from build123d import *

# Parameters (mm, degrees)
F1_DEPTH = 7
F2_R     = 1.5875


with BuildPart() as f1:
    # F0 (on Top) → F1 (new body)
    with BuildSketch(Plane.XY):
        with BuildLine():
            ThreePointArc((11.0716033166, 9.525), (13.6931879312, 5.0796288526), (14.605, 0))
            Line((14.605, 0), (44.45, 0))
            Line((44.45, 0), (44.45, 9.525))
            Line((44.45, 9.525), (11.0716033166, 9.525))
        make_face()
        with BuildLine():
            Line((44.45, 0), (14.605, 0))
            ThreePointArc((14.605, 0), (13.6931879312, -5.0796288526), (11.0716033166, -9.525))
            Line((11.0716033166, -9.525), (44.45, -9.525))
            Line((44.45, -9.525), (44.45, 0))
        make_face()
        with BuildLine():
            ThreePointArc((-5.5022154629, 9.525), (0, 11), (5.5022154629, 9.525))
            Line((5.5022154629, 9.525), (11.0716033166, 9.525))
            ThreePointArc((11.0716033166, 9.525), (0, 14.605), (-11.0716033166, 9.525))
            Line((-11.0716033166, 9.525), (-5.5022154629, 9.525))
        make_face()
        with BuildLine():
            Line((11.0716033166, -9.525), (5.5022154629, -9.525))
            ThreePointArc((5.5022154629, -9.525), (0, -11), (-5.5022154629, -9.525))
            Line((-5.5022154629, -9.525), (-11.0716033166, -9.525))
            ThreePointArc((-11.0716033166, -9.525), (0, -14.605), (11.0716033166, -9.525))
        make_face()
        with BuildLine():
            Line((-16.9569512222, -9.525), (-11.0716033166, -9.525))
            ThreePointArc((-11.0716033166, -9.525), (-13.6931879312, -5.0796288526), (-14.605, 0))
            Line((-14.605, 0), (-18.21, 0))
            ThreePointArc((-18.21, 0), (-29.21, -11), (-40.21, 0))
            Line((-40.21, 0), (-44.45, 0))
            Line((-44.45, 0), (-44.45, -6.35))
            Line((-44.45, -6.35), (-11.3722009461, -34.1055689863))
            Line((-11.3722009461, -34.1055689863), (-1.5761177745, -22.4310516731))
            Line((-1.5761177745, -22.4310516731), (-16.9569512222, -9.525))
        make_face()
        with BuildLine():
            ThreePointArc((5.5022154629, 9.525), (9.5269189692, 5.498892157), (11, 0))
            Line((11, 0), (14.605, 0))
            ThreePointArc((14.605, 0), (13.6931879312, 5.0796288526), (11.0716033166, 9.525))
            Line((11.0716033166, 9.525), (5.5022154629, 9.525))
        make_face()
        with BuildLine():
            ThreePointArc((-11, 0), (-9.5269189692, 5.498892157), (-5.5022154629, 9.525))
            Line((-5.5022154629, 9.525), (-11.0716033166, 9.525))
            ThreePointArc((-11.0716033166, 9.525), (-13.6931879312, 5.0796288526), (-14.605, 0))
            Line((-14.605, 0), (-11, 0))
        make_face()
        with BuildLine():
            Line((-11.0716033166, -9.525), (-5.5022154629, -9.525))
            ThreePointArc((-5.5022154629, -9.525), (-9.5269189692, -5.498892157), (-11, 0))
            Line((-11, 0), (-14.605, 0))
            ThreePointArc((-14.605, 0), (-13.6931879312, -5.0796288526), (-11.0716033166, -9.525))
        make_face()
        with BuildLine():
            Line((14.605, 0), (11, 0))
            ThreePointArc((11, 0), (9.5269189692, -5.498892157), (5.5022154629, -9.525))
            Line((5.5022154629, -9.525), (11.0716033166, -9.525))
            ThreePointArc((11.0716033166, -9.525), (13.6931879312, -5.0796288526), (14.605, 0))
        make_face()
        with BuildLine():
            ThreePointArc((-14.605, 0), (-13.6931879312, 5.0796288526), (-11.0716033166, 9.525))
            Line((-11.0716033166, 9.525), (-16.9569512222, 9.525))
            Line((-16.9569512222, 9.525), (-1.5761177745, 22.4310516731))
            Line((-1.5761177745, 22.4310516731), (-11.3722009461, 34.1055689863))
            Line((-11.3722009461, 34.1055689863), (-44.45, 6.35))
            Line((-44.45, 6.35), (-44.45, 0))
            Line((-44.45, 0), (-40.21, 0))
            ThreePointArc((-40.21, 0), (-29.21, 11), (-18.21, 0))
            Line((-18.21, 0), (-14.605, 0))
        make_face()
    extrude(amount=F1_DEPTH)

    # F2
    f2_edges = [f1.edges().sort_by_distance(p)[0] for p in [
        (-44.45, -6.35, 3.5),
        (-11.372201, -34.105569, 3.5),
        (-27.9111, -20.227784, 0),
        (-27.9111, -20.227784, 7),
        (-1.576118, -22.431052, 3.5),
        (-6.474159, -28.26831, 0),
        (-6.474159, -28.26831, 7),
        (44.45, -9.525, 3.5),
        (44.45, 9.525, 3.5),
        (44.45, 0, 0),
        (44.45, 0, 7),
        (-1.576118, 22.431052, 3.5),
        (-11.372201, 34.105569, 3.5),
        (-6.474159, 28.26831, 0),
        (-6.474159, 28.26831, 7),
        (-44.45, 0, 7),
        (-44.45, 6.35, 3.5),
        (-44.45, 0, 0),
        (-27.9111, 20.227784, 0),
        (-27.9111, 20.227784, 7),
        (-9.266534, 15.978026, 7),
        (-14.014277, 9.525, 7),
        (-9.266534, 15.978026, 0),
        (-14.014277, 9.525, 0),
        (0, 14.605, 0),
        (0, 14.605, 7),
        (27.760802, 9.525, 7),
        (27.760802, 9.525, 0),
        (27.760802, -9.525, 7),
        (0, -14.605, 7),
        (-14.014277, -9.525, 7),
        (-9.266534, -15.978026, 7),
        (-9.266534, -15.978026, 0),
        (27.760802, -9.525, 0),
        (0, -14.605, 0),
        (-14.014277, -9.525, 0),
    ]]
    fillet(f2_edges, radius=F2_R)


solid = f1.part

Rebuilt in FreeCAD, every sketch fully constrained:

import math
import FreeCAD as App
import Part
import Sketcher

V = App.Vector
Q = App.Units.Quantity


def edges_at(feature, points):
    """Names of the edges that pass closest to the given points."""
    edges = feature.Shape.Edges
    near = lambda p: min(range(len(edges)), key=lambda i: edges[i].distToShape(Part.Vertex(*p))[0])
    return sorted({f"Edge{near(p) + 1}" for p in points})

doc = App.newDocument("Part")
body = doc.addObject("PartDesign::Body", "Body")

sketch1 = body.newObject("Sketcher::SketchObject", "Sketch")
sketch1.AttachmentSupport = (doc.getObject("XY_Plane"), [""])
sketch1.MapMode = "FlatFace"
sketch1.addGeometry(Part.ArcOfCircle(Part.Circle(V(0, 0, 0), V(0, 0, 1), 15), math.radians(-139), math.radians(-41)), False)
sketch1.addGeometry(Part.LineSegment(V(11, -10, 0), V(44, -10, 0)), False)
sketch1.addGeometry(Part.LineSegment(V(44, -10, 0), V(44, 10, 0)), False)
sketch1.addGeometry(Part.LineSegment(V(44, 10, 0), V(11, 10, 0)), False)
sketch1.addGeometry(Part.ArcOfCircle(Part.Circle(V(0, 0, 0), V(0, 0, 1), 15), math.radians(41), math.radians(139)), False)
sketch1.addGeometry(Part.LineSegment(V(-11, 10, 0), V(-17, 10, 0)), False)
sketch1.addGeometry(Part.LineSegment(V(-17, 10, 0), V(-2, 22, 0)), False)
sketch1.addGeometry(Part.LineSegment(V(-2, 22, 0), V(-11, 34, 0)), False)
sketch1.addGeometry(Part.LineSegment(V(-11, 34, 0), V(-44, 6, 0)), False)
sketch1.addGeometry(Part.LineSegment(V(-44, 6, 0), V(-44, -6, 0)), False)
sketch1.addGeometry(Part.LineSegment(V(-44, -6, 0), V(-11, -34, 0)), False)
sketch1.addGeometry(Part.LineSegment(V(-11, -34, 0), V(-2, -22, 0)), False)
sketch1.addGeometry(Part.LineSegment(V(-2, -22, 0), V(-17, -10, 0)), False)
sketch1.addGeometry(Part.LineSegment(V(-17, -10, 0), V(-11, -10, 0)), False)
sketch1.addGeometry(Part.Circle(V(-29, 0, 0), V(0, 0, 1), 11), False)
sketch1.addGeometry(Part.ArcOfCircle(Part.Circle(V(0, 0, 0), V(0, 0, 1), 11), math.radians(-60), math.radians(60)), False)
sketch1.addGeometry(Part.ArcOfCircle(Part.Circle(V(0, 0, 0), V(0, 0, 1), 11), math.radians(-120), math.radians(-60)), False)
sketch1.addGeometry(Part.ArcOfCircle(Part.Circle(V(0, 0, 0), V(0, 0, 1), 11), math.radians(120), math.radians(240)), False)
sketch1.addGeometry(Part.ArcOfCircle(Part.Circle(V(0, 0, 0), V(0, 0, 1), 11), math.radians(60), math.radians(120)), False)
sketch1.addConstraint(Sketcher.Constraint("Coincident", 0, 2, 1, 1))
sketch1.addConstraint(Sketcher.Constraint("Coincident", 1, 2, 2, 1))
sketch1.addConstraint(Sketcher.Constraint("Coincident", 2, 2, 3, 1))
sketch1.addConstraint(Sketcher.Constraint("Coincident", 3, 2, 4, 1))
sketch1.addConstraint(Sketcher.Constraint("Coincident", 4, 2, 5, 1))
sketch1.addConstraint(Sketcher.Constraint("Coincident", 5, 2, 6, 1))
sketch1.addConstraint(Sketcher.Constraint("Coincident", 6, 2, 7, 1))
sketch1.addConstraint(Sketcher.Constraint("Coincident", 7, 2, 8, 1))
sketch1.addConstraint(Sketcher.Constraint("Coincident", 8, 2, 9, 1))
sketch1.addConstraint(Sketcher.Constraint("Coincident", 9, 2, 10, 1))
sketch1.addConstraint(Sketcher.Constraint("Coincident", 10, 2, 11, 1))
sketch1.addConstraint(Sketcher.Constraint("Coincident", 11, 2, 12, 1))
sketch1.addConstraint(Sketcher.Constraint("Coincident", 12, 2, 13, 1))
sketch1.addConstraint(Sketcher.Constraint("Coincident", 13, 2, 0, 1))
sketch1.addConstraint(Sketcher.Constraint("Tangent", 15, 1, 16, 2))
sketch1.addConstraint(Sketcher.Constraint("Tangent", 16, 1, 17, 2))
sketch1.addConstraint(Sketcher.Constraint("Tangent", 17, 1, 18, 2))
sketch1.addConstraint(Sketcher.Constraint("Tangent", 18, 1, 15, 2))
sketch1.addConstraint(Sketcher.Constraint("Horizontal", 1))
sketch1.addConstraint(Sketcher.Constraint("Vertical", 2))
sketch1.addConstraint(Sketcher.Constraint("Horizontal", 3))
sketch1.addConstraint(Sketcher.Constraint("Horizontal", 5))
sketch1.addConstraint(Sketcher.Constraint("Vertical", 9))
sketch1.addConstraint(Sketcher.Constraint("Horizontal", 13))
sketch1.addConstraint(Sketcher.Constraint("Coincident", 0, 3, -1, 1))
sketch1.addConstraint(Sketcher.Constraint("Coincident", 4, 3, -1, 1))
sketch1.addConstraint(Sketcher.Constraint("Coincident", 15, 3, -1, 1))
sketch1.addConstraint(Sketcher.Constraint("Equal", 0, 4))
sketch1.addConstraint(Sketcher.Constraint("Equal", 14, 15))
sketch1.addConstraint(Sketcher.Constraint("Equal", 15, 16))
sketch1.addConstraint(Sketcher.Constraint("Symmetric", 7, 2, 10, 2, -1))
sketch1.addConstraint(Sketcher.Constraint("Symmetric", 6, 2, 11, 2, -1))
sketch1.addConstraint(Sketcher.Constraint("Symmetric", 5, 2, 12, 2, -1))
sketch1.addConstraint(Sketcher.Constraint("PointOnObject", 14, 3, -1))
sketch1.addConstraint(Sketcher.Constraint("Perpendicular", 6, 7))
sketch1.addConstraint(Sketcher.Constraint("Perpendicular", 7, 8))
sketch1.addConstraint(Sketcher.Constraint("Perpendicular", 10, 11))
sketch1.addConstraint(Sketcher.Constraint("Horizontal", 3, 2, 4, 2))
sketch1.addConstraint(Sketcher.Constraint("Horizontal", 1, 2, 12, 2))
sketch1.addConstraint(Sketcher.Constraint("Horizontal", 13, 2, 15, 1))
sketch1.addConstraint(Sketcher.Constraint("Horizontal", 15, 1, 16, 1))
sketch1.addConstraint(Sketcher.Constraint("Horizontal", 5, 2, 17, 1))
sketch1.addConstraint(Sketcher.Constraint("Horizontal", 17, 1, 18, 1))
sketch1.addConstraint(Sketcher.Constraint("DistanceY", 9, 2, 9, 1, Q("0.5 in")))
sketch1.addConstraint(Sketcher.Constraint("Angle", 6, Q("40 deg")))
sketch1.addConstraint(Sketcher.Constraint("Radius", 0, Q("0.575 in")))
sketch1.addConstraint(Sketcher.Constraint("Distance", 7, Q("0.6 in")))
sketch1.addConstraint(Sketcher.Constraint("Distance", 8, Q("1.7 in")))
sketch1.addConstraint(Sketcher.Constraint("DistanceY", 2, 1, 2, 2, Q("0.75 in")))
sketch1.addConstraint(Sketcher.Constraint("DistanceX", 8, 2, 14, 3, Q("0.6 in")))
sketch1.addConstraint(Sketcher.Constraint("Diameter", 14, Q("22 mm")))
sketch1.addConstraint(Sketcher.Constraint("DistanceX", 14, 3, -1, 1, Q("1.15 in")))
sketch1.addConstraint(Sketcher.Constraint("DistanceX", -1, 1, 1, 2, Q("1.75 in")))
pad1 = body.newObject("PartDesign::Pad", "Pad")
pad1.Profile = sketch1
pad1.Length = 7
doc.recompute()

fillet = body.newObject("PartDesign::Fillet", "Fillet")
fillet.Base = (pad1, edges_at(pad1, [
    (-44.45, -6.35, 3.5),
    (-11.372, -34.106, 3.5),
    (-27.911, -20.228, 0),
    (-27.911, -20.228, 7),
    (-1.576, -22.431, 3.5),
    (-6.474, -28.268, 0),
    (-6.474, -28.268, 7),
    (44.45, -9.525, 3.5),
    (44.45, 9.525, 3.5),
    (44.45, 0, 0),
    (44.45, 0, 7),
    (-1.576, 22.431, 3.5),
    (-11.372, 34.106, 3.5),
    (-6.474, 28.268, 0),
    (-6.474, 28.268, 7),
    (-44.45, 0, 7),
    (-44.45, 6.35, 3.5),
    (-44.45, 0, 0),
    (-27.911, 20.228, 0),
    (-27.911, 20.228, 7),
    (-9.267, 15.978, 7),
    (-14.014, 9.525, 7),
    (-9.267, 15.978, 0),
    (-14.014, 9.525, 0),
    (0, 14.605, 0),
    (0, 14.605, 7),
    (27.761, 9.525, 7),
    (27.761, 9.525, 0),
    (27.761, -9.525, 7),
    (0, -14.605, 7),
    (-14.014, -9.525, 7),
    (-9.267, -15.978, 7),
    (-9.267, -15.978, 0),
    (27.761, -9.525, 0),
    (0, -14.605, 0),
    (-14.014, -9.525, 0),
]))
fillet.Radius = Q("0.0625 in")

doc.recompute()
